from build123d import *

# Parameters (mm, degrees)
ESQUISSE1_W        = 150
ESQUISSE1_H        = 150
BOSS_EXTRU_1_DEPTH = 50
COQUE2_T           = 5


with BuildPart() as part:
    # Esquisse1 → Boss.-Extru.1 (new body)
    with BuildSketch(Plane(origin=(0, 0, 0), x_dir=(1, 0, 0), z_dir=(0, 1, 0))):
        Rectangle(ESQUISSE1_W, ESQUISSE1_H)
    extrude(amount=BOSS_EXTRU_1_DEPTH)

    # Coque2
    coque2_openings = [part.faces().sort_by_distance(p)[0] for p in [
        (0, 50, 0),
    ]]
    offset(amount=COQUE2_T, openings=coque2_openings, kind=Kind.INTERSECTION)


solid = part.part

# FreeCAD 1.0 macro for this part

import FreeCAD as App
import Part
import Sketcher

V = App.Vector
Q = App.Units.Quantity


def faces_at(feature, points):
    """Names of the faces that lie closest to the given points."""
    faces = feature.Shape.Faces
    near = lambda p: min(range(len(faces)), key=lambda i: faces[i].distToShape(Part.Vertex(*p))[0])
    return sorted({f"Face{near(p) + 1}" for p in points})


def add_polygon(sketch, points):
    """Adds a closed chain of lines whose ends are joined by coincident constraints."""
    first, n = sketch.GeometryCount, len(points)
    for a, b in zip(points, points[1:] + points[:1]):
        sketch.addGeometry(Part.LineSegment(App.Vector(*a, 0), App.Vector(*b, 0)), False)
    for i in range(n):
        sketch.addConstraint(Sketcher.Constraint("Coincident", first + i, 2, first + (i + 1) % n, 1))

doc = App.newDocument("Part")
body = doc.addObject("PartDesign::Body", "Body")

# Sketch on XZ plane
sketch1 = doc.addObject("Sketcher::SketchObject", "Sketch")
body.addObject(sketch1)
sketch1.AttachmentSupport = (doc.XZ_Plane, [""])
sketch1.MapMode = "FlatFace"
add_polygon(sketch1, [(-75, -75), (-75, 75), (75, 75), (75, -75)])  # lines 0-3
sketch1.addConstraint([
    Sketcher.Constraint("Vertical", 0),
    Sketcher.Constraint("Horizontal", 1),
    Sketcher.Constraint("Vertical", 2),
    Sketcher.Constraint("Horizontal", 3),
    Sketcher.Constraint("Symmetric", 0, 2, 2, 2, -1, 1),
    Sketcher.Constraint("Equal", 3, 0),
    Sketcher.Constraint("DistanceX", 1, 1, 1, 2, Q("150 mm")),
])
pad1 = doc.addObject("PartDesign::Pad", "Pad")
body.addObject(pad1)
pad1.Profile = sketch1
pad1.Length = 50
pad1.Reversed = True
doc.recompute()

thickness = doc.addObject("PartDesign::Thickness", "Thickness")
body.addObject(thickness)
thickness.Base = (pad1, faces_at(pad1, [(0, 50, 0)]))
thickness.Value = 5
thickness.Reversed = False
thickness.Join = "Intersection"

doc.recompute()
